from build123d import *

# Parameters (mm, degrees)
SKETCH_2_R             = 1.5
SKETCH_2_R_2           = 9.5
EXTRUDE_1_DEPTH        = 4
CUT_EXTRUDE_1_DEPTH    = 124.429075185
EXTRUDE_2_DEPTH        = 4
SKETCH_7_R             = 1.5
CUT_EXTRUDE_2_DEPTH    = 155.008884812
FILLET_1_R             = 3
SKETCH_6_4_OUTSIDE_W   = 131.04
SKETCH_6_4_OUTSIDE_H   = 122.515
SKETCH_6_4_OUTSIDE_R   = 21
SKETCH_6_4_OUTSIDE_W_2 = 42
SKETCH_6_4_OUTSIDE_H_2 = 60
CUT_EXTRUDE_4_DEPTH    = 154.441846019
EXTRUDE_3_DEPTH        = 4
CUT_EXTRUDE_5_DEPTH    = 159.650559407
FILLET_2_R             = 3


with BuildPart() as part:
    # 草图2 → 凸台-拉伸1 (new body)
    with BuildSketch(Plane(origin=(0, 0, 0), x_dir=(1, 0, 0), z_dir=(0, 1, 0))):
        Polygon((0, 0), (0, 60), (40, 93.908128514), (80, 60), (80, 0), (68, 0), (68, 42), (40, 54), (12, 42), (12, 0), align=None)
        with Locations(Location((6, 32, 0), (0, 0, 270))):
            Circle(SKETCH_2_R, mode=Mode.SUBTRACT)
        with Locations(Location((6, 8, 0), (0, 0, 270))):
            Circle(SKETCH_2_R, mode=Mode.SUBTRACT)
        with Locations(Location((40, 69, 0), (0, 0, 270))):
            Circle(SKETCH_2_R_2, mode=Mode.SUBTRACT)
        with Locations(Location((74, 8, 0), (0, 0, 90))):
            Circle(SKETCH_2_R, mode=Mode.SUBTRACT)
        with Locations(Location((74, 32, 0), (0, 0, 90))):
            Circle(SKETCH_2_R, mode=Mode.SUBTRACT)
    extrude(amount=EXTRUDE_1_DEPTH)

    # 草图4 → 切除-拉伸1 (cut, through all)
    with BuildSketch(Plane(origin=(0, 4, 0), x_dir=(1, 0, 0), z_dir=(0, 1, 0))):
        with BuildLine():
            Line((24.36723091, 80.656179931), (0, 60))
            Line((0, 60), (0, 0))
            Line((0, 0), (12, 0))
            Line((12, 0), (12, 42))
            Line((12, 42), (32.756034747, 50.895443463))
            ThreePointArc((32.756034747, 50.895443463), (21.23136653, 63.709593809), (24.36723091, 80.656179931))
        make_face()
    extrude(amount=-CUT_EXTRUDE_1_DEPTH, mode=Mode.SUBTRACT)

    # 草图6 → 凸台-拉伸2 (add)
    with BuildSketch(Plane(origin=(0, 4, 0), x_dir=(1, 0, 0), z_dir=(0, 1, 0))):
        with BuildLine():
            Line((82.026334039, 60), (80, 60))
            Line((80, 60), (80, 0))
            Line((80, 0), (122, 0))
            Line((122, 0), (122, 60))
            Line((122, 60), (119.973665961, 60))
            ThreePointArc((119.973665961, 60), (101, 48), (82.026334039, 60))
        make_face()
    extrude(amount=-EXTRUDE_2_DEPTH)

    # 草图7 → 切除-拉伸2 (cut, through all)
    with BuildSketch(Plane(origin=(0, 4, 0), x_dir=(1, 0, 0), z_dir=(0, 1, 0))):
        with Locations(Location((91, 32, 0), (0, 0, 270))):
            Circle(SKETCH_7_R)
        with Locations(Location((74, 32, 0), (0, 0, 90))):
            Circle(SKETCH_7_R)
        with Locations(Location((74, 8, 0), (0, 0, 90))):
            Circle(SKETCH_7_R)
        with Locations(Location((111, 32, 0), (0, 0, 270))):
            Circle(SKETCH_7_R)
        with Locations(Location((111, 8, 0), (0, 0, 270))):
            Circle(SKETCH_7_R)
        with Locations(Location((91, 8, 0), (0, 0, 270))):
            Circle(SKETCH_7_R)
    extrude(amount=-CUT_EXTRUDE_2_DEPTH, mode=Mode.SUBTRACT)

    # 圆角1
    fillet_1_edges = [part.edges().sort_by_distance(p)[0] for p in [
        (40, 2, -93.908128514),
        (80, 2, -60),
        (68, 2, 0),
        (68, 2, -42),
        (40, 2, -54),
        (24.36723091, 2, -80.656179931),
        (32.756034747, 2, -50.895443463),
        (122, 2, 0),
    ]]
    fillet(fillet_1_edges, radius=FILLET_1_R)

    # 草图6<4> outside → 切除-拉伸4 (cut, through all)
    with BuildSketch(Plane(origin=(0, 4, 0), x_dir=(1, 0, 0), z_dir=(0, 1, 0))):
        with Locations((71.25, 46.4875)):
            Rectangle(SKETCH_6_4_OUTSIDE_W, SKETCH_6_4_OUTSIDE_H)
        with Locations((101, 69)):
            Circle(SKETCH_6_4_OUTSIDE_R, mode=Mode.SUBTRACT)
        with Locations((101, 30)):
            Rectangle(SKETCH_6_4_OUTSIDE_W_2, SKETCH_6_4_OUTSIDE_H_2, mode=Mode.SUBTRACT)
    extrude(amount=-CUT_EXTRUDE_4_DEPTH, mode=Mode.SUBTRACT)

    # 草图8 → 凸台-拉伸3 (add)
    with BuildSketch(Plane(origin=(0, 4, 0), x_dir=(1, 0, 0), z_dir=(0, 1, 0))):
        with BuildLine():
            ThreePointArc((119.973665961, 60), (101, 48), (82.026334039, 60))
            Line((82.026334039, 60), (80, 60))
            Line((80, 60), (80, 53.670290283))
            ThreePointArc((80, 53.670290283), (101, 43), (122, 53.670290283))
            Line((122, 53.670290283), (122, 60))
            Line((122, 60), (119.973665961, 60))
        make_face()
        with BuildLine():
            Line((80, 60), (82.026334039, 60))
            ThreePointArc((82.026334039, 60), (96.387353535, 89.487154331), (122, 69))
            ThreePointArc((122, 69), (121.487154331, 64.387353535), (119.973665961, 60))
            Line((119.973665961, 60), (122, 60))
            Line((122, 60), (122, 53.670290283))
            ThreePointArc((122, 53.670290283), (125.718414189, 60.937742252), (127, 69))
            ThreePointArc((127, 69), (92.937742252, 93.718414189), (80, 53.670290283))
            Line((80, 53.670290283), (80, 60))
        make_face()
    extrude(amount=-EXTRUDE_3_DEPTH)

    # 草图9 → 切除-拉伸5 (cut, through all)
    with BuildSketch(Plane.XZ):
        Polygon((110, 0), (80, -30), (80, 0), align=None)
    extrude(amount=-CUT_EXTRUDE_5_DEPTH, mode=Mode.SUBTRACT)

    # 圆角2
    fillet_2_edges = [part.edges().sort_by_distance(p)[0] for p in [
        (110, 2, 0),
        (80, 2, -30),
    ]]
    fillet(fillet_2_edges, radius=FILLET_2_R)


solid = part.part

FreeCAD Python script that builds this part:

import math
import FreeCAD as App
import Part
import Sketcher
from FreeCAD import Vector


def edges_at(feature, points):
    """Names of the edges that pass closest to the given points."""
    edges = feature.Shape.Edges
    near = lambda p: min(range(len(edges)), key=lambda i: edges[i].distToShape(Part.Vertex(*p))[0])
    return sorted({f"Edge{near(p) + 1}" for p in points})


def add_polygon(sketch, points):
    """Adds a closed chain of lines whose ends are joined by coincident constraints."""
    first, n = sketch.GeometryCount, len(points)
    for a, b in zip(points, points[1:] + points[:1]):
        sketch.addGeometry(Part.LineSegment(App.Vector(*a, 0), App.Vector(*b, 0)), False)
    for i in range(n):
        sketch.addConstraint(Sketcher.Constraint("Coincident", first + i, 2, first + (i + 1) % n, 1))

doc = App.newDocument("Part")
body = doc.addObject("PartDesign::Body", "Body")

sketch1 = body.newObject("Sketcher::SketchObject", "Sketch")
sketch1.AttachmentSupport = (doc.getObject("XZ_Plane"), [""])
sketch1.MapMode = "FlatFace"
add_polygon(sketch1, [(0, -60), (0, 0), (12, 0), (12, -42), (40, -54), (68, -42), (68, 0), (80, 0), (80, -60), (40, -93.9)])
sketch1.addGeometry(Part.Circle(Vector(74, -8, 0), Vector(0, 0, 1), 1.5), False)
sketch1.addGeometry(Part.Circle(Vector(74, -32, 0), Vector(0, 0, 1), 1.5), False)
sketch1.addGeometry(Part.Circle(Vector(6, -8, 0), Vector(0, 0, 1), 1.5), False)
sketch1.addGeometry(Part.Circle(Vector(6, -32, 0), Vector(0, 0, 1), 1.5), False)
sketch1.addGeometry(Part.Circle(Vector(40, -69, 0), Vector(0, 0, 1), 9.5), False)
sketch1.addConstraint([
    Sketcher.Constraint("Vertical", 0),
    Sketcher.Constraint("Horizontal", 1),
    Sketcher.Constraint("Vertical", 2),
    Sketcher.Constraint("Vertical", 5),
    Sketcher.Constraint("Horizontal", 6),
    Sketcher.Constraint("Vertical", 7),
    Sketcher.Constraint("Coincident", 0, 2, -1, 1),
    Sketcher.Constraint("Equal", 10, 11),
    Sketcher.Constraint("Equal", 11, 12),
    Sketcher.Constraint("Equal", 12, 13),
    Sketcher.Constraint("PointOnObject", 5, 2, -1),
    Sketcher.Constraint("Horizontal", 10, 3, 12, 3),
    Sketcher.Constraint("Horizontal", 11, 3, 13, 3),
    Sketcher.Constraint("Horizontal", 2, 2, 4, 2),
    Sketcher.Constraint("Horizontal", 7, 2, 9, 2),
    Sketcher.Constraint("Vertical", 10, 3, 11, 3),
    Sketcher.Constraint("Vertical", 12, 3, 13, 3),
    Sketcher.Constraint("Vertical", 14, 3, 3, 2),
    Sketcher.Constraint("Vertical", 3, 2, 8, 2),
    Sketcher.Constraint("Equal", 1, 6),
    Sketcher.Constraint("Equal", 3, 4),
    Sketcher.Constraint("Diameter", 10, 3.0),
    Sketcher.Constraint("Diameter", 14, 19.0),
    Sketcher.Constraint("DistanceX", 1, 1, 1, 2, 12.0),
    Sketcher.Constraint("DistanceY", 0, 1, 0, 2, 60.0),
    Sketcher.Constraint("DistanceY", 2, 2, 2, 1, 42.0),
    Sketcher.Constraint("DistanceX", -1, 1, 10, 3, 74.0),
    Sketcher.Constraint("DistanceY", 10, 3, -1, 1, 8.0),
    Sketcher.Constraint("DistanceY", 11, 3, -1, 1, 32.0),
    Sketcher.Constraint("DistanceX", -1, 1, 12, 3, 6.0),
    Sketcher.Constraint("DistanceX", -1, 1, 14, 3, 40.0),
    Sketcher.Constraint("DistanceY", 14, 3, -1, 1, 69.0),
    Sketcher.Constraint("DistanceY", 3, 2, -1, 1, 54.0),
    Sketcher.Constraint("DistanceY", 8, 2, -1, 1, 93.908129),
])
pad1 = body.newObject("PartDesign::Pad", "Pad")
pad1.Profile = sketch1
pad1.Length = 4
pad1.Reversed = True

sketch2 = body.newObject("Sketcher::SketchObject", "Sketch001")
sketch2.AttachmentSupport = (doc.getObject("XZ_Plane"), [""])
sketch2.MapMode = "FlatFace"
sketch2.AttachmentOffset = App.Placement(Vector(0, 0, -4), App.Rotation())
sketch2.addGeometry([
    Part.LineSegment(Vector(24, -81, 0), Vector(0, -60, 0)),
    Part.LineSegment(Vector(0, -60, 0), Vector(0, 0, 0)),
    Part.LineSegment(Vector(0, 0, 0), Vector(12, 0, 0)),
    Part.LineSegment(Vector(12, 0, 0), Vector(12, -42, 0)),
    Part.LineSegment(Vector(12, -42, 0), Vector(33, -51, 0)),
    Part.ArcOfCircle(Part.Circle(Vector(40, -69, 0), Vector(0, 0, 1), 20), math.radians(112), math.radians(217)),
], False)
sketch2.addConstraint([
    Sketcher.Constraint("Coincident", 0, 2, 1, 1),
    Sketcher.Constraint("Coincident", 1, 2, 2, 1),
    Sketcher.Constraint("Coincident", 2, 2, 3, 1),
    Sketcher.Constraint("Coincident", 3, 2, 4, 1),
    Sketcher.Constraint("Coincident", 4, 2, 5, 1),
    Sketcher.Constraint("Coincident", 5, 2, 0, 1),
    Sketcher.Constraint("Vertical", 1),
    Sketcher.Constraint("Horizontal", 2),
    Sketcher.Constraint("Vertical", 3),
    Sketcher.Constraint("Coincident", 1, 2, -1, 1),
    Sketcher.Constraint("Radius", 5, 19.5),
    Sketcher.Constraint("DistanceX", 2, 1, 2, 2, 12.0),
    Sketcher.Constraint("DistanceY", 1, 1, 1, 2, 60.0),
    Sketcher.Constraint("DistanceY", 3, 2, 3, 1, 42.0),
    Sketcher.Constraint("DistanceX", -1, 1, 5, 3, 40.0),
    Sketcher.Constraint("DistanceY", 5, 3, -1, 1, 69.0),
    Sketcher.Constraint("DistanceX", -1, 1, 5, 2, 24.367231),
    Sketcher.Constraint("Distance", 4, 22.581893),
])
pocket1 = body.newObject("PartDesign::Pocket", "Pocket")
pocket1.Profile = sketch2
pocket1.Type = "ThroughAll"
pocket1.Reversed = True

sketch3 = body.newObject("Sketcher::SketchObject", "Sketch002")
sketch3.AttachmentSupport = (doc.getObject("XZ_Plane"), [""])
sketch3.MapMode = "FlatFace"
sketch3.AttachmentOffset = App.Placement(Vector(0, 0, -4), App.Rotation())
sketch3.addGeometry([
    Part.LineSegment(Vector(82, -60, 0), Vector(80, -60, 0)),
    Part.LineSegment(Vector(80, -60, 0), Vector(80, 0, 0)),
    Part.LineSegment(Vector(80, 0, 0), Vector(122, 0, 0)),
    Part.LineSegment(Vector(122, 0, 0), Vector(122, -60, 0)),
    Part.LineSegment(Vector(122, -60, 0), Vector(120, -60, 0)),
    Part.ArcOfCircle(Part.Circle(Vector(101, -69, 0), Vector(0, 0, 1), 21), math.radians(25), math.radians(155)),
], False)
sketch3.addConstraint([
    Sketcher.Constraint("Coincident", 0, 2, 1, 1),
    Sketcher.Constraint("Coincident", 1, 2, 2, 1),
    Sketcher.Constraint("Coincident", 2, 2, 3, 1),
    Sketcher.Constraint("Coincident", 3, 2, 4, 1),
    Sketcher.Constraint("Coincident", 4, 2, 5, 1),
    Sketcher.Constraint("Coincident", 5, 2, 0, 1),
    Sketcher.Constraint("Horizontal", 0),
    Sketcher.Constraint("Vertical", 1),
    Sketcher.Constraint("Horizontal", 2),
    Sketcher.Constraint("Vertical", 3),
    Sketcher.Constraint("Horizontal", 4),
    Sketcher.Constraint("PointOnObject", 1, 2, -1),
    Sketcher.Constraint("Horizontal", 0, 2, 3, 2),
    Sketcher.Constraint("Equal", 0, 4),
    Sketcher.Constraint("Radius", 5, 21.0),
    Sketcher.Constraint("DistanceX", 2, 1, 2, 2, 42.0),
    Sketcher.Constraint("DistanceY", 1, 1, 1, 2, 60.0),
    Sketcher.Constraint("DistanceX", -1, 1, 5, 3, 101.0),
    Sketcher.Constraint("DistanceY", 5, 3, -1, 1, 69.0),
])
pad2 = body.newObject("PartDesign::Pad", "Pad001")
pad2.Profile = sketch3
pad2.Length = 4

sketch4 = body.newObject("Sketcher::SketchObject", "Sketch003")
sketch4.AttachmentSupport = (doc.getObject("XZ_Plane"), [""])
sketch4.MapMode = "FlatFace"
sketch4.AttachmentOffset = App.Placement(Vector(0, 0, -4), App.Rotation())
sketch4.addGeometry([
    Part.Circle(Vector(91, -32, 0), Vector(0, 0, 1), 1.5),
    Part.Circle(Vector(74, -32, 0), Vector(0, 0, 1), 1.5),
    Part.Circle(Vector(74, -8, 0), Vector(0, 0, 1), 1.5),
    Part.Circle(Vector(111, -32, 0), Vector(0, 0, 1), 1.5),
    Part.Circle(Vector(111, -8, 0), Vector(0, 0, 1), 1.5),
    Part.Circle(Vector(91, -8, 0), Vector(0, 0, 1), 1.5),
], False)
sketch4.addConstraint([
    Sketcher.Constraint("Equal", 0, 1),
    Sketcher.Constraint("Equal", 1, 2),
    Sketcher.Constraint("Equal", 2, 3),
    Sketcher.Constraint("Equal", 3, 4),
    Sketcher.Constraint("Equal", 4, 5),
    Sketcher.Constraint("Horizontal", 0, 3, 1, 3),
    Sketcher.Constraint("Horizontal", 1, 3, 3, 3),
    Sketcher.Constraint("Horizontal", 2, 3, 4, 3),
    Sketcher.Constraint("Horizontal", 4, 3, 5, 3),
    Sketcher.Constraint("Vertical", 1, 3, 2, 3),
    Sketcher.Constraint("Vertical", 3, 3, 4, 3),
    Sketcher.Constraint("Vertical", 0, 3, 5, 3),
    Sketcher.Constraint("Diameter", 0, 3.0),
    Sketcher.Constraint("DistanceX", -1, 1, 0, 3, 91.0),
    Sketcher.Constraint("DistanceY", 0, 3, -1, 1, 32.0),
    Sketcher.Constraint("DistanceX", -1, 1, 1, 3, 74.0),
    Sketcher.Constraint("DistanceY", 2, 3, -1, 1, 8.0),
    Sketcher.Constraint("DistanceX", -1, 1, 3, 3, 111.0),
])
pocket2 = body.newObject("PartDesign::Pocket", "Pocket001")
pocket2.Profile = sketch4
pocket2.Type = "ThroughAll"
pocket2.Reversed = True
doc.recompute()

fillet = body.newObject("PartDesign::Fillet", "Fillet")
fillet.Base = (pocket2, edges_at(pocket2, [
    (40, 2, -93.908),
    (80, 2, -60),
    (68, 2, 0),
    (68, 2, -42),
    (40, 2, -54),
    (24.367, 2, -80.656),
    (32.756, 2, -50.895),
    (122, 2, 0),
]))
fillet.Radius = 3

sketch5 = body.newObject("Sketcher::SketchObject", "Sketch004")
sketch5.AttachmentSupport = (doc.getObject("XZ_Plane"), [""])
sketch5.MapMode = "FlatFace"
sketch5.AttachmentOffset = App.Placement(Vector(0, 0, -4), App.Rotation())
add_polygon(sketch5, [(5.7, -107.7), (5.7, 14.8), (136.8, 14.8), (136.8, -107.7)])
sketch5.addGeometry(Part.ArcOfCircle(Part.Circle(Vector(101, -69, 0), Vector(0, 0, 1), 21), math.radians(155), math.radians(385)), False)
sketch5.addGeometry(Part.LineSegment(Vector(120, -60, 0), Vector(122, -60, 0)), False)
sketch5.addGeometry(Part.LineSegment(Vector(122, -60, 0), Vector(122, 0, 0)), False)
sketch5.addGeometry(Part.LineSegment(Vector(122, 0, 0), Vector(80, 0, 0)), False)
sketch5.addGeometry(Part.LineSegment(Vector(80, 0, 0), Vector(80, -60, 0)), False)
sketch5.addGeometry(Part.LineSegment(Vector(80, -60, 0), Vector(82, -60, 0)), False)
sketch5.addConstraint([
    Sketcher.Constraint("Coincident", 4, 2, 5, 1),
    Sketcher.Constraint("Coincident", 5, 2, 6, 1),
    Sketcher.Constraint("Coincident", 6, 2, 7, 1),
    Sketcher.Constraint("Coincident", 7, 2, 8, 1),
    Sketcher.Constraint("Coincident", 8, 2, 9, 1),
    Sketcher.Constraint("Coincident", 9, 2, 4, 1),
    Sketcher.Constraint("Vertical", 0),
    Sketcher.Constraint("Horizontal", 1),
    Sketcher.Constraint("Vertical", 2),
    Sketcher.Constraint("Horizontal", 3),
    Sketcher.Constraint("Horizontal", 5),
    Sketcher.Constraint("Vertical", 6),
    Sketcher.Constraint("Horizontal", 7),
    Sketcher.Constraint("Vertical", 8),
    Sketcher.Constraint("Horizontal", 9),
    Sketcher.Constraint("PointOnObject", 6, 2, -1),
    Sketcher.Constraint("Horizontal", 5, 2, 8, 2),
    Sketcher.Constraint("Equal", 5, 9),
    Sketcher.Constraint("Radius", 4, 21.0),
    Sketcher.Constraint("DistanceX", 7, 2, 7, 1, 42.0),
    Sketcher.Constraint("DistanceY", 6, 1, 6, 2, 60.0),
    Sketcher.Constraint("DistanceX", -1, 1, 4, 3, 101.0),
    Sketcher.Constraint("DistanceY", 4, 3, -1, 1, 69.0),
    Sketcher.Constraint("DistanceX", 1, 1, 1, 2, 131.04),
    Sketcher.Constraint("DistanceY", 0, 1, 0, 2, 122.515),
    Sketcher.Constraint("DistanceX", -1, 1, 0, 2, 5.73),
    Sketcher.Constraint("DistanceY", -1, 1, 0, 2, 14.77),
])
pocket3 = body.newObject("PartDesign::Pocket", "Pocket002")
pocket3.Profile = sketch5
pocket3.Type = "ThroughAll"
pocket3.Reversed = True

sketch6 = body.newObject("Sketcher::SketchObject", "Sketch005")
sketch6.AttachmentSupport = (doc.getObject("XZ_Plane"), [""])
sketch6.MapMode = "FlatFace"
sketch6.AttachmentOffset = App.Placement(Vector(0, 0, -4), App.Rotation())
sketch6.addGeometry([
    Part.ArcOfCircle(Part.Circle(Vector(101, -69, 0), Vector(0, 0, 1), 26), math.radians(36), math.radians(144)),
    Part.ArcOfCircle(Part.Circle(Vector(101, -69, 0), Vector(0, 0, 1), 26), math.radians(0), math.radians(36)),
    Part.ArcOfCircle(Part.Circle(Vector(101, -69, 0), Vector(0, 0, 1), 26), math.radians(144), math.radians(360)),
    Part.ArcOfCircle(Part.Circle(Vector(101, -69, 0), Vector(0, 0, 1), 21), math.radians(25), math.radians(155)),
    Part.ArcOfCircle(Part.Circle(Vector(101, -69, 0), Vector(0, 0, 1), 21), math.radians(155), math.radians(360)),
    Part.ArcOfCircle(Part.Circle(Vector(101, -69, 0), Vector(0, 0, 1), 21), math.radians(0), math.radians(25)),
], False)
sketch6.addConstraint([
    Sketcher.Constraint("Tangent", 0, 1, 1, 2),
    Sketcher.Constraint("Tangent", 1, 1, 2, 2),
    Sketcher.Constraint("Tangent", 2, 1, 0, 2),
    Sketcher.Constraint("Tangent", 3, 2, 4, 1),
    Sketcher.Constraint("Tangent", 4, 2, 5, 1),
    Sketcher.Constraint("Tangent", 5, 2, 3, 1),
    Sketcher.Constraint("Coincident", 3, 3, 0, 3),
    Sketcher.Constraint("Horizontal", 5, 3, 1, 1),
    Sketcher.Constraint("Horizontal", 0, 1, 2, 1),
    Sketcher.Constraint("Horizontal", 1, 1, 4, 2),
    Sketcher.Constraint("Horizontal", 3, 2, 5, 2),
    Sketcher.Constraint("Vertical", 0, 1, 4, 2),
    Sketcher.Constraint("Radius", 0, 26.0),
    Sketcher.Constraint("Radius", 3, 21.0),
    Sketcher.Constraint("DistanceX", -1, 1, 0, 3, 101.0),
    Sketcher.Constraint("DistanceY", 0, 3, -1, 1, 69.0),
    Sketcher.Constraint("DistanceY", 3, 2, -1, 1, 60.0),
])
pad3 = body.newObject("PartDesign::Pad", "Pad002")
pad3.Profile = sketch6
pad3.Length = 4

sketch7 = body.newObject("Sketcher::SketchObject", "Sketch006")
sketch7.AttachmentSupport = (doc.getObject("XZ_Plane"), [""])
sketch7.MapMode = "FlatFace"
add_polygon(sketch7, [(80, -30), (110, 0), (80, 0)])
sketch7.addConstraint([
    Sketcher.Constraint("Horizontal", 1),
    Sketcher.Constraint("Vertical", 2),
    Sketcher.Constraint("PointOnObject", 0, 2, -1),
    Sketcher.Constraint("Equal", 1, 2),
    Sketcher.Constraint("DistanceX", 1, 2, 1, 1, 30.0),
    Sketcher.Constraint("DistanceX", -1, 1, 0, 2, 110.0),
])
pocket4 = body.newObject("PartDesign::Pocket", "Pocket003")
pocket4.Profile = sketch7
pocket4.Type = "ThroughAll"
doc.recompute()

fillet2 = body.newObject("PartDesign::Fillet", "Fillet001")
fillet2.Base = (pocket4, edges_at(pocket4, [(110, 2, 0), (80, 2, -30)]))
fillet2.Radius = 3

doc.recompute()
